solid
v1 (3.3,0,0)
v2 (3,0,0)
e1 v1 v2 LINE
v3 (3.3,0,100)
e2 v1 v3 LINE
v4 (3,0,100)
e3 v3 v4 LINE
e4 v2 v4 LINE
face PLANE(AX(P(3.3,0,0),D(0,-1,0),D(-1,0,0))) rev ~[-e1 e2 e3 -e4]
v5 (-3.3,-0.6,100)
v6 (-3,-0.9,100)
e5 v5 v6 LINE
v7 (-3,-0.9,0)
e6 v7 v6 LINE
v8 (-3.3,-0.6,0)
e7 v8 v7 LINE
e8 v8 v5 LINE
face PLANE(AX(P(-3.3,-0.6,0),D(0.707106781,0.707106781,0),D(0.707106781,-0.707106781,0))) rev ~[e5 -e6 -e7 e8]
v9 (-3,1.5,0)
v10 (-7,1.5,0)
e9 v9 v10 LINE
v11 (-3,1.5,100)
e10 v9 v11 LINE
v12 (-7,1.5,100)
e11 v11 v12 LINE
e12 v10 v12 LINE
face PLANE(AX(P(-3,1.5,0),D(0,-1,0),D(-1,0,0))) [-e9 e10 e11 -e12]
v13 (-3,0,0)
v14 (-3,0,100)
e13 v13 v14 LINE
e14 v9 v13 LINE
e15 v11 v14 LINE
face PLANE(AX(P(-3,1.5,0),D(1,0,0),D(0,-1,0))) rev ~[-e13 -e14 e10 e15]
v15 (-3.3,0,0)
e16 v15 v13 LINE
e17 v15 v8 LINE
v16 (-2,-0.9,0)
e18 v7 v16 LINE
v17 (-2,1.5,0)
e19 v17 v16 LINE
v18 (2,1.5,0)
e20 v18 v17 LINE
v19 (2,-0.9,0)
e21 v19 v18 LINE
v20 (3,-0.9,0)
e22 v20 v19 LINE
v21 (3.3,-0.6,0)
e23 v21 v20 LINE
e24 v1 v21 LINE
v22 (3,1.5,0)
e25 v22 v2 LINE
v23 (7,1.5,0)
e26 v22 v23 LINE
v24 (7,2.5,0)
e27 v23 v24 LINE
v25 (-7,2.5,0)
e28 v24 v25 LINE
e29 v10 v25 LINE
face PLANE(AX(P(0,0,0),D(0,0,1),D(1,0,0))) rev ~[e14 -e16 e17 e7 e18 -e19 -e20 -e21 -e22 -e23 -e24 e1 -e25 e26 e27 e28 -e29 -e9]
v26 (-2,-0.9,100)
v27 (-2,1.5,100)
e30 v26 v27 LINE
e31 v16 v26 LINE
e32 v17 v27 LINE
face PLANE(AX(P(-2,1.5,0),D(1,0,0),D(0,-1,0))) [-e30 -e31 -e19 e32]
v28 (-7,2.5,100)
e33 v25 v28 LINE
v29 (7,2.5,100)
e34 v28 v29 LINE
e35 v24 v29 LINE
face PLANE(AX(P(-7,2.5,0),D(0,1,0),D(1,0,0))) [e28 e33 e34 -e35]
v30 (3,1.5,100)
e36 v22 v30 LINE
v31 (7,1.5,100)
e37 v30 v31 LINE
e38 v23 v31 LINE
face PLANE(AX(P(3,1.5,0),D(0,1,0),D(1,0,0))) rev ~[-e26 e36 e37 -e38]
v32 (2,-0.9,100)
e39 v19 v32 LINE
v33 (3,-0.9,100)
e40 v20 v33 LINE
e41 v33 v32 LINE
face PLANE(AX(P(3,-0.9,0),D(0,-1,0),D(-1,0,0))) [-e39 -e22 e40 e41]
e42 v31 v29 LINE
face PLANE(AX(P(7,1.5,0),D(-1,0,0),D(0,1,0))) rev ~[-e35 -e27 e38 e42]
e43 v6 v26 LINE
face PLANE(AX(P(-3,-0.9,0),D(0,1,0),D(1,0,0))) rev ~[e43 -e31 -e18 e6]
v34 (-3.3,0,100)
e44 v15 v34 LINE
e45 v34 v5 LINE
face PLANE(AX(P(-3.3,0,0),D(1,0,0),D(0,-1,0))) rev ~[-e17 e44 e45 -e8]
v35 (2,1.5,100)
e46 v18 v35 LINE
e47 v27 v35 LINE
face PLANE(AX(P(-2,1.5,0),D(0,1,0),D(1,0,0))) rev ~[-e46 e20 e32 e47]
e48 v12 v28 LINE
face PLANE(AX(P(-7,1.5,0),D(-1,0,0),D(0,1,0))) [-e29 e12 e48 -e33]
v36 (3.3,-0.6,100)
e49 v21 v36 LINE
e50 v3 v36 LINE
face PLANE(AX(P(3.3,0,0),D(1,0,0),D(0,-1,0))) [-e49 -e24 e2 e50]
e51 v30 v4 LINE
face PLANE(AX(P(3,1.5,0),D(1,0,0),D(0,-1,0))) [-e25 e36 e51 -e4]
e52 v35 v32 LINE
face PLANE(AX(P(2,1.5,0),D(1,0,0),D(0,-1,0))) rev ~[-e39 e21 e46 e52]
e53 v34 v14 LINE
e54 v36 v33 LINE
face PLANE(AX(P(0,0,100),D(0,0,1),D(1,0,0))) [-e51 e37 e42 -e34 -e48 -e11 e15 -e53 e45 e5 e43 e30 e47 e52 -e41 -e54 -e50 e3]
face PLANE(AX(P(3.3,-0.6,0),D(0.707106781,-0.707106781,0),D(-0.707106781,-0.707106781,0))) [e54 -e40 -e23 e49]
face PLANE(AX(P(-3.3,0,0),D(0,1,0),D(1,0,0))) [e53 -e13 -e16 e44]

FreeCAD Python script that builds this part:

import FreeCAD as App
import Part
import Sketcher


def add_polygon(sketch, points):
    """Adds a closed chain of lines whose ends are joined by coincident constraints."""
    first, n = sketch.GeometryCount, len(points)
    for a, b in zip(points, points[1:] + points[:1]):
        sketch.addGeometry(Part.LineSegment(App.Vector(*a, 0), App.Vector(*b, 0)), False)
    for i in range(n):
        sketch.addConstraint(Sketcher.Constraint("Coincident", first + i, 2, first + (i + 1) % n, 1))

doc = App.newDocument("Part")
body = doc.addObject("PartDesign::Body", "Body")

# Sketch on XY plane
sketch1 = doc.addObject("Sketcher::SketchObject", "Sketch")
body.addObject(sketch1)
sketch1.AttachmentSupport = (doc.XY_Plane, [""])
sketch1.MapMode = "FlatFace"
add_polygon(sketch1, [(-7, 2.5), (-7, 1.5), (-3, 1.5), (-3, 0), (-3.3, 0), (-3.3, -0.6), (-3, -0.9), (-2, -0.9), (-2, 1.5), (2, 1.5), (2, -0.9), (3, -0.9), (3.3, -0.6), (3.3, 0), (3, 0), (3, 1.5), (7, 1.5), (7, 2.5)])  # lines 0-17
sketch1.addConstraint([
    Sketcher.Constraint("Vertical", 0),
    Sketcher.Constraint("Horizontal", 1),
    Sketcher.Constraint("Vertical", 2),
    Sketcher.Constraint("Horizontal", 3),
    Sketcher.Constraint("Vertical", 4),
    Sketcher.Constraint("Horizontal", 6),
    Sketcher.Constraint("Vertical", 7),
    Sketcher.Constraint("Horizontal", 8),
    Sketcher.Constraint("Vertical", 9),
    Sketcher.Constraint("Horizontal", 10),
    Sketcher.Constraint("Vertical", 12),
    Sketcher.Constraint("Horizontal", 13),
    Sketcher.Constraint("Vertical", 14),
    Sketcher.Constraint("Horizontal", 15),
    Sketcher.Constraint("Vertical", 16),
    Sketcher.Constraint("Horizontal", 17),
    Sketcher.Constraint("Symmetric", 3, 2, 12, 2, -1, 1),
    Sketcher.Constraint("Symmetric", 6, 2, 9, 2, -2),
    Sketcher.Constraint("Symmetric", 2, 2, 13, 2, -2),
    Sketcher.Constraint("Symmetric", 0, 2, 15, 2, -2),
    Sketcher.Constraint("Perpendicular", 5, 11),
    Sketcher.Constraint("Horizontal", 1, 2, 7, 2),
    Sketcher.Constraint("Horizontal", 4, 2, 11, 2),
    Sketcher.Constraint("Vertical", 2, 2, 5, 2),
    Sketcher.Constraint("Vertical", 10, 2, 13, 2),
    Sketcher.Constraint("Equal", 1, 8),
    Sketcher.Constraint("Equal", 10, 0),
    Sketcher.Constraint("DistanceX", 6, 1, 6, 2, 1.0),
    Sketcher.Constraint("DistanceY", 2, 2, 2, 1, 1.5),
    Sketcher.Constraint("DistanceX", 0, 2, -1, 1, 7.0),
    Sketcher.Constraint("DistanceX", 3, 2, -1, 1, 3.3),
    Sketcher.Constraint("DistanceY", 5, 2, -1, 1, 0.9),
])
pad1 = doc.addObject("PartDesign::Pad", "Pad")
body.addObject(pad1)
pad1.Profile = sketch1
pad1.Length = 100

doc.recompute()
